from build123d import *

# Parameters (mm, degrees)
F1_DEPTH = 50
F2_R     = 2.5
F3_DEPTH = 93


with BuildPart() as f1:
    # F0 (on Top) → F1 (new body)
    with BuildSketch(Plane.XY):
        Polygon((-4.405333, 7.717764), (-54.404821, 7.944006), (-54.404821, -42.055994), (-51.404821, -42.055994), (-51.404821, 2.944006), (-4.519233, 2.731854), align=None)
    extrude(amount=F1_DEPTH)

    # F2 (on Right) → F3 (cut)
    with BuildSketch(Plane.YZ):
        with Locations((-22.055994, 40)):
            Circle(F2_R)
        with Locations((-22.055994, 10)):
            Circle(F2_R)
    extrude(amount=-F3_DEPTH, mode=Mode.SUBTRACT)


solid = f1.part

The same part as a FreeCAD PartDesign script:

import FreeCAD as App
import Part
import Sketcher

V = App.Vector
Q = App.Units.Quantity


def add_polygon(sketch, points):
    """Adds a closed chain of lines whose ends are joined by coincident constraints."""
    first, n = sketch.GeometryCount, len(points)
    for a, b in zip(points, points[1:] + points[:1]):
        sketch.addGeometry(Part.LineSegment(App.Vector(*a, 0), App.Vector(*b, 0)), False)
    for i in range(n):
        sketch.addConstraint(Sketcher.Constraint("Coincident", first + i, 2, first + (i + 1) % n, 1))

doc = App.newDocument("Part")
params = doc.addObject("Spreadsheet::Sheet", "Params")
for row, (alias, value) in enumerate([
    ("sketch1_width", "3 mm"),
    ("sketch1_height", "50 mm"),
    ("sketch1_height2", "45 mm"),
    ("sketch1_length", "50 mm"),
    ("pad1_length", "50 mm"),
    ("sketch2_diameter", "5 mm"),
    ("pocket1_length", "93 mm"),
], start=1):
    params.set(f"A{row}", alias)
    params.set(f"B{row}", "=" + value)
    params.setAlias(f"B{row}", alias)

body = doc.addObject("PartDesign::Body", "Body")

sketch1 = doc.addObject("Sketcher::SketchObject", "Sketch")
body.addObject(sketch1)
sketch1.AttachmentSupport = (doc.XY_Plane, [""])
sketch1.MapMode = "FlatFace"
add_polygon(sketch1, [(-4.405333, 7.717764), (-54.404821, 7.944006), (-54.404821, -42.055994), (-51.404821, -42.055994), (-51.404821, 2.944006), (-4.519233, 2.731854)])
sketch1.addConstraint(Sketcher.Constraint("Vertical", 1))
sketch1.addConstraint(Sketcher.Constraint("Horizontal", 2))
sketch1.addConstraint(Sketcher.Constraint("Vertical", 3))
sketch1.addConstraint(Sketcher.Constraint("Parallel", 0, 4))
sketch1.addConstraint(Sketcher.Constraint("DistanceX", 2, 1, 2, 2, Q("3 mm")))
sketch1.addConstraint(Sketcher.Constraint("DistanceY", 1, 2, 1, 1, Q("50 mm")))
sketch1.addConstraint(Sketcher.Constraint("DistanceY", 3, 1, 3, 2, Q("45 mm")))
sketch1.addConstraint(Sketcher.Constraint("Distance", 0, Q("50 mm")))
sketch1.addConstraint(Sketcher.Constraint("DistanceX", 4, 2, 5, 2, Q("0.1139 mm")))
sketch1.addConstraint(Sketcher.Constraint("Distance", 5, Q("4.987211 mm")))
sketch1.addConstraint(Sketcher.Constraint("DistanceX", 0, 2, -1, 1, Q("54.404821 mm")))
sketch1.addConstraint(Sketcher.Constraint("DistanceY", -1, 1, 0, 2, Q("7.944006 mm")))
sketch1.setExpression("Constraints[10]", "Params.sketch1_width")
sketch1.setExpression("Constraints[11]", "Params.sketch1_height")
sketch1.setExpression("Constraints[12]", "Params.sketch1_height2")
sketch1.setExpression("Constraints[13]", "Params.sketch1_length")
pad1 = doc.addObject("PartDesign::Pad", "Pad")
body.addObject(pad1)
pad1.Profile = sketch1
pad1.setExpression("Length", "Params.pad1_length")

sketch2 = doc.addObject("Sketcher::SketchObject", "Sketch001")
body.addObject(sketch2)
sketch2.AttachmentSupport = (doc.YZ_Plane, [""])
sketch2.MapMode = "FlatFace"
sketch2.addGeometry(Part.Circle(V(-22.055994, 40, 0), V(0, 0, 1), 2.5), False)
sketch2.addGeometry(Part.Circle(V(-22.055994, 10, 0), V(0, 0, 1), 2.5), False)
sketch2.addConstraint(Sketcher.Constraint("Equal", 0, 1))
sketch2.addConstraint(Sketcher.Constraint("Vertical", 0, 3, 1, 3))
sketch2.addConstraint(Sketcher.Constraint("Diameter", 0, Q("5 mm")))
sketch2.addConstraint(Sketcher.Constraint("DistanceY", -1, 1, 0, 3, Q("40 mm")))
sketch2.addConstraint(Sketcher.Constraint("DistanceY", -1, 1, 1, 3, Q("10 mm")))
sketch2.addConstraint(Sketcher.Constraint("DistanceX", 0, 3, -1, 1, Q("22.055994 mm")))
sketch2.setExpression("Constraints[2]", "Params.sketch2_diameter")
pocket1 = doc.addObject("PartDesign::Pocket", "Pocket")
body.addObject(pocket1)
pocket1.Profile = sketch2
pocket1.setExpression("Length", "Params.pocket1_length")

doc.recompute()
